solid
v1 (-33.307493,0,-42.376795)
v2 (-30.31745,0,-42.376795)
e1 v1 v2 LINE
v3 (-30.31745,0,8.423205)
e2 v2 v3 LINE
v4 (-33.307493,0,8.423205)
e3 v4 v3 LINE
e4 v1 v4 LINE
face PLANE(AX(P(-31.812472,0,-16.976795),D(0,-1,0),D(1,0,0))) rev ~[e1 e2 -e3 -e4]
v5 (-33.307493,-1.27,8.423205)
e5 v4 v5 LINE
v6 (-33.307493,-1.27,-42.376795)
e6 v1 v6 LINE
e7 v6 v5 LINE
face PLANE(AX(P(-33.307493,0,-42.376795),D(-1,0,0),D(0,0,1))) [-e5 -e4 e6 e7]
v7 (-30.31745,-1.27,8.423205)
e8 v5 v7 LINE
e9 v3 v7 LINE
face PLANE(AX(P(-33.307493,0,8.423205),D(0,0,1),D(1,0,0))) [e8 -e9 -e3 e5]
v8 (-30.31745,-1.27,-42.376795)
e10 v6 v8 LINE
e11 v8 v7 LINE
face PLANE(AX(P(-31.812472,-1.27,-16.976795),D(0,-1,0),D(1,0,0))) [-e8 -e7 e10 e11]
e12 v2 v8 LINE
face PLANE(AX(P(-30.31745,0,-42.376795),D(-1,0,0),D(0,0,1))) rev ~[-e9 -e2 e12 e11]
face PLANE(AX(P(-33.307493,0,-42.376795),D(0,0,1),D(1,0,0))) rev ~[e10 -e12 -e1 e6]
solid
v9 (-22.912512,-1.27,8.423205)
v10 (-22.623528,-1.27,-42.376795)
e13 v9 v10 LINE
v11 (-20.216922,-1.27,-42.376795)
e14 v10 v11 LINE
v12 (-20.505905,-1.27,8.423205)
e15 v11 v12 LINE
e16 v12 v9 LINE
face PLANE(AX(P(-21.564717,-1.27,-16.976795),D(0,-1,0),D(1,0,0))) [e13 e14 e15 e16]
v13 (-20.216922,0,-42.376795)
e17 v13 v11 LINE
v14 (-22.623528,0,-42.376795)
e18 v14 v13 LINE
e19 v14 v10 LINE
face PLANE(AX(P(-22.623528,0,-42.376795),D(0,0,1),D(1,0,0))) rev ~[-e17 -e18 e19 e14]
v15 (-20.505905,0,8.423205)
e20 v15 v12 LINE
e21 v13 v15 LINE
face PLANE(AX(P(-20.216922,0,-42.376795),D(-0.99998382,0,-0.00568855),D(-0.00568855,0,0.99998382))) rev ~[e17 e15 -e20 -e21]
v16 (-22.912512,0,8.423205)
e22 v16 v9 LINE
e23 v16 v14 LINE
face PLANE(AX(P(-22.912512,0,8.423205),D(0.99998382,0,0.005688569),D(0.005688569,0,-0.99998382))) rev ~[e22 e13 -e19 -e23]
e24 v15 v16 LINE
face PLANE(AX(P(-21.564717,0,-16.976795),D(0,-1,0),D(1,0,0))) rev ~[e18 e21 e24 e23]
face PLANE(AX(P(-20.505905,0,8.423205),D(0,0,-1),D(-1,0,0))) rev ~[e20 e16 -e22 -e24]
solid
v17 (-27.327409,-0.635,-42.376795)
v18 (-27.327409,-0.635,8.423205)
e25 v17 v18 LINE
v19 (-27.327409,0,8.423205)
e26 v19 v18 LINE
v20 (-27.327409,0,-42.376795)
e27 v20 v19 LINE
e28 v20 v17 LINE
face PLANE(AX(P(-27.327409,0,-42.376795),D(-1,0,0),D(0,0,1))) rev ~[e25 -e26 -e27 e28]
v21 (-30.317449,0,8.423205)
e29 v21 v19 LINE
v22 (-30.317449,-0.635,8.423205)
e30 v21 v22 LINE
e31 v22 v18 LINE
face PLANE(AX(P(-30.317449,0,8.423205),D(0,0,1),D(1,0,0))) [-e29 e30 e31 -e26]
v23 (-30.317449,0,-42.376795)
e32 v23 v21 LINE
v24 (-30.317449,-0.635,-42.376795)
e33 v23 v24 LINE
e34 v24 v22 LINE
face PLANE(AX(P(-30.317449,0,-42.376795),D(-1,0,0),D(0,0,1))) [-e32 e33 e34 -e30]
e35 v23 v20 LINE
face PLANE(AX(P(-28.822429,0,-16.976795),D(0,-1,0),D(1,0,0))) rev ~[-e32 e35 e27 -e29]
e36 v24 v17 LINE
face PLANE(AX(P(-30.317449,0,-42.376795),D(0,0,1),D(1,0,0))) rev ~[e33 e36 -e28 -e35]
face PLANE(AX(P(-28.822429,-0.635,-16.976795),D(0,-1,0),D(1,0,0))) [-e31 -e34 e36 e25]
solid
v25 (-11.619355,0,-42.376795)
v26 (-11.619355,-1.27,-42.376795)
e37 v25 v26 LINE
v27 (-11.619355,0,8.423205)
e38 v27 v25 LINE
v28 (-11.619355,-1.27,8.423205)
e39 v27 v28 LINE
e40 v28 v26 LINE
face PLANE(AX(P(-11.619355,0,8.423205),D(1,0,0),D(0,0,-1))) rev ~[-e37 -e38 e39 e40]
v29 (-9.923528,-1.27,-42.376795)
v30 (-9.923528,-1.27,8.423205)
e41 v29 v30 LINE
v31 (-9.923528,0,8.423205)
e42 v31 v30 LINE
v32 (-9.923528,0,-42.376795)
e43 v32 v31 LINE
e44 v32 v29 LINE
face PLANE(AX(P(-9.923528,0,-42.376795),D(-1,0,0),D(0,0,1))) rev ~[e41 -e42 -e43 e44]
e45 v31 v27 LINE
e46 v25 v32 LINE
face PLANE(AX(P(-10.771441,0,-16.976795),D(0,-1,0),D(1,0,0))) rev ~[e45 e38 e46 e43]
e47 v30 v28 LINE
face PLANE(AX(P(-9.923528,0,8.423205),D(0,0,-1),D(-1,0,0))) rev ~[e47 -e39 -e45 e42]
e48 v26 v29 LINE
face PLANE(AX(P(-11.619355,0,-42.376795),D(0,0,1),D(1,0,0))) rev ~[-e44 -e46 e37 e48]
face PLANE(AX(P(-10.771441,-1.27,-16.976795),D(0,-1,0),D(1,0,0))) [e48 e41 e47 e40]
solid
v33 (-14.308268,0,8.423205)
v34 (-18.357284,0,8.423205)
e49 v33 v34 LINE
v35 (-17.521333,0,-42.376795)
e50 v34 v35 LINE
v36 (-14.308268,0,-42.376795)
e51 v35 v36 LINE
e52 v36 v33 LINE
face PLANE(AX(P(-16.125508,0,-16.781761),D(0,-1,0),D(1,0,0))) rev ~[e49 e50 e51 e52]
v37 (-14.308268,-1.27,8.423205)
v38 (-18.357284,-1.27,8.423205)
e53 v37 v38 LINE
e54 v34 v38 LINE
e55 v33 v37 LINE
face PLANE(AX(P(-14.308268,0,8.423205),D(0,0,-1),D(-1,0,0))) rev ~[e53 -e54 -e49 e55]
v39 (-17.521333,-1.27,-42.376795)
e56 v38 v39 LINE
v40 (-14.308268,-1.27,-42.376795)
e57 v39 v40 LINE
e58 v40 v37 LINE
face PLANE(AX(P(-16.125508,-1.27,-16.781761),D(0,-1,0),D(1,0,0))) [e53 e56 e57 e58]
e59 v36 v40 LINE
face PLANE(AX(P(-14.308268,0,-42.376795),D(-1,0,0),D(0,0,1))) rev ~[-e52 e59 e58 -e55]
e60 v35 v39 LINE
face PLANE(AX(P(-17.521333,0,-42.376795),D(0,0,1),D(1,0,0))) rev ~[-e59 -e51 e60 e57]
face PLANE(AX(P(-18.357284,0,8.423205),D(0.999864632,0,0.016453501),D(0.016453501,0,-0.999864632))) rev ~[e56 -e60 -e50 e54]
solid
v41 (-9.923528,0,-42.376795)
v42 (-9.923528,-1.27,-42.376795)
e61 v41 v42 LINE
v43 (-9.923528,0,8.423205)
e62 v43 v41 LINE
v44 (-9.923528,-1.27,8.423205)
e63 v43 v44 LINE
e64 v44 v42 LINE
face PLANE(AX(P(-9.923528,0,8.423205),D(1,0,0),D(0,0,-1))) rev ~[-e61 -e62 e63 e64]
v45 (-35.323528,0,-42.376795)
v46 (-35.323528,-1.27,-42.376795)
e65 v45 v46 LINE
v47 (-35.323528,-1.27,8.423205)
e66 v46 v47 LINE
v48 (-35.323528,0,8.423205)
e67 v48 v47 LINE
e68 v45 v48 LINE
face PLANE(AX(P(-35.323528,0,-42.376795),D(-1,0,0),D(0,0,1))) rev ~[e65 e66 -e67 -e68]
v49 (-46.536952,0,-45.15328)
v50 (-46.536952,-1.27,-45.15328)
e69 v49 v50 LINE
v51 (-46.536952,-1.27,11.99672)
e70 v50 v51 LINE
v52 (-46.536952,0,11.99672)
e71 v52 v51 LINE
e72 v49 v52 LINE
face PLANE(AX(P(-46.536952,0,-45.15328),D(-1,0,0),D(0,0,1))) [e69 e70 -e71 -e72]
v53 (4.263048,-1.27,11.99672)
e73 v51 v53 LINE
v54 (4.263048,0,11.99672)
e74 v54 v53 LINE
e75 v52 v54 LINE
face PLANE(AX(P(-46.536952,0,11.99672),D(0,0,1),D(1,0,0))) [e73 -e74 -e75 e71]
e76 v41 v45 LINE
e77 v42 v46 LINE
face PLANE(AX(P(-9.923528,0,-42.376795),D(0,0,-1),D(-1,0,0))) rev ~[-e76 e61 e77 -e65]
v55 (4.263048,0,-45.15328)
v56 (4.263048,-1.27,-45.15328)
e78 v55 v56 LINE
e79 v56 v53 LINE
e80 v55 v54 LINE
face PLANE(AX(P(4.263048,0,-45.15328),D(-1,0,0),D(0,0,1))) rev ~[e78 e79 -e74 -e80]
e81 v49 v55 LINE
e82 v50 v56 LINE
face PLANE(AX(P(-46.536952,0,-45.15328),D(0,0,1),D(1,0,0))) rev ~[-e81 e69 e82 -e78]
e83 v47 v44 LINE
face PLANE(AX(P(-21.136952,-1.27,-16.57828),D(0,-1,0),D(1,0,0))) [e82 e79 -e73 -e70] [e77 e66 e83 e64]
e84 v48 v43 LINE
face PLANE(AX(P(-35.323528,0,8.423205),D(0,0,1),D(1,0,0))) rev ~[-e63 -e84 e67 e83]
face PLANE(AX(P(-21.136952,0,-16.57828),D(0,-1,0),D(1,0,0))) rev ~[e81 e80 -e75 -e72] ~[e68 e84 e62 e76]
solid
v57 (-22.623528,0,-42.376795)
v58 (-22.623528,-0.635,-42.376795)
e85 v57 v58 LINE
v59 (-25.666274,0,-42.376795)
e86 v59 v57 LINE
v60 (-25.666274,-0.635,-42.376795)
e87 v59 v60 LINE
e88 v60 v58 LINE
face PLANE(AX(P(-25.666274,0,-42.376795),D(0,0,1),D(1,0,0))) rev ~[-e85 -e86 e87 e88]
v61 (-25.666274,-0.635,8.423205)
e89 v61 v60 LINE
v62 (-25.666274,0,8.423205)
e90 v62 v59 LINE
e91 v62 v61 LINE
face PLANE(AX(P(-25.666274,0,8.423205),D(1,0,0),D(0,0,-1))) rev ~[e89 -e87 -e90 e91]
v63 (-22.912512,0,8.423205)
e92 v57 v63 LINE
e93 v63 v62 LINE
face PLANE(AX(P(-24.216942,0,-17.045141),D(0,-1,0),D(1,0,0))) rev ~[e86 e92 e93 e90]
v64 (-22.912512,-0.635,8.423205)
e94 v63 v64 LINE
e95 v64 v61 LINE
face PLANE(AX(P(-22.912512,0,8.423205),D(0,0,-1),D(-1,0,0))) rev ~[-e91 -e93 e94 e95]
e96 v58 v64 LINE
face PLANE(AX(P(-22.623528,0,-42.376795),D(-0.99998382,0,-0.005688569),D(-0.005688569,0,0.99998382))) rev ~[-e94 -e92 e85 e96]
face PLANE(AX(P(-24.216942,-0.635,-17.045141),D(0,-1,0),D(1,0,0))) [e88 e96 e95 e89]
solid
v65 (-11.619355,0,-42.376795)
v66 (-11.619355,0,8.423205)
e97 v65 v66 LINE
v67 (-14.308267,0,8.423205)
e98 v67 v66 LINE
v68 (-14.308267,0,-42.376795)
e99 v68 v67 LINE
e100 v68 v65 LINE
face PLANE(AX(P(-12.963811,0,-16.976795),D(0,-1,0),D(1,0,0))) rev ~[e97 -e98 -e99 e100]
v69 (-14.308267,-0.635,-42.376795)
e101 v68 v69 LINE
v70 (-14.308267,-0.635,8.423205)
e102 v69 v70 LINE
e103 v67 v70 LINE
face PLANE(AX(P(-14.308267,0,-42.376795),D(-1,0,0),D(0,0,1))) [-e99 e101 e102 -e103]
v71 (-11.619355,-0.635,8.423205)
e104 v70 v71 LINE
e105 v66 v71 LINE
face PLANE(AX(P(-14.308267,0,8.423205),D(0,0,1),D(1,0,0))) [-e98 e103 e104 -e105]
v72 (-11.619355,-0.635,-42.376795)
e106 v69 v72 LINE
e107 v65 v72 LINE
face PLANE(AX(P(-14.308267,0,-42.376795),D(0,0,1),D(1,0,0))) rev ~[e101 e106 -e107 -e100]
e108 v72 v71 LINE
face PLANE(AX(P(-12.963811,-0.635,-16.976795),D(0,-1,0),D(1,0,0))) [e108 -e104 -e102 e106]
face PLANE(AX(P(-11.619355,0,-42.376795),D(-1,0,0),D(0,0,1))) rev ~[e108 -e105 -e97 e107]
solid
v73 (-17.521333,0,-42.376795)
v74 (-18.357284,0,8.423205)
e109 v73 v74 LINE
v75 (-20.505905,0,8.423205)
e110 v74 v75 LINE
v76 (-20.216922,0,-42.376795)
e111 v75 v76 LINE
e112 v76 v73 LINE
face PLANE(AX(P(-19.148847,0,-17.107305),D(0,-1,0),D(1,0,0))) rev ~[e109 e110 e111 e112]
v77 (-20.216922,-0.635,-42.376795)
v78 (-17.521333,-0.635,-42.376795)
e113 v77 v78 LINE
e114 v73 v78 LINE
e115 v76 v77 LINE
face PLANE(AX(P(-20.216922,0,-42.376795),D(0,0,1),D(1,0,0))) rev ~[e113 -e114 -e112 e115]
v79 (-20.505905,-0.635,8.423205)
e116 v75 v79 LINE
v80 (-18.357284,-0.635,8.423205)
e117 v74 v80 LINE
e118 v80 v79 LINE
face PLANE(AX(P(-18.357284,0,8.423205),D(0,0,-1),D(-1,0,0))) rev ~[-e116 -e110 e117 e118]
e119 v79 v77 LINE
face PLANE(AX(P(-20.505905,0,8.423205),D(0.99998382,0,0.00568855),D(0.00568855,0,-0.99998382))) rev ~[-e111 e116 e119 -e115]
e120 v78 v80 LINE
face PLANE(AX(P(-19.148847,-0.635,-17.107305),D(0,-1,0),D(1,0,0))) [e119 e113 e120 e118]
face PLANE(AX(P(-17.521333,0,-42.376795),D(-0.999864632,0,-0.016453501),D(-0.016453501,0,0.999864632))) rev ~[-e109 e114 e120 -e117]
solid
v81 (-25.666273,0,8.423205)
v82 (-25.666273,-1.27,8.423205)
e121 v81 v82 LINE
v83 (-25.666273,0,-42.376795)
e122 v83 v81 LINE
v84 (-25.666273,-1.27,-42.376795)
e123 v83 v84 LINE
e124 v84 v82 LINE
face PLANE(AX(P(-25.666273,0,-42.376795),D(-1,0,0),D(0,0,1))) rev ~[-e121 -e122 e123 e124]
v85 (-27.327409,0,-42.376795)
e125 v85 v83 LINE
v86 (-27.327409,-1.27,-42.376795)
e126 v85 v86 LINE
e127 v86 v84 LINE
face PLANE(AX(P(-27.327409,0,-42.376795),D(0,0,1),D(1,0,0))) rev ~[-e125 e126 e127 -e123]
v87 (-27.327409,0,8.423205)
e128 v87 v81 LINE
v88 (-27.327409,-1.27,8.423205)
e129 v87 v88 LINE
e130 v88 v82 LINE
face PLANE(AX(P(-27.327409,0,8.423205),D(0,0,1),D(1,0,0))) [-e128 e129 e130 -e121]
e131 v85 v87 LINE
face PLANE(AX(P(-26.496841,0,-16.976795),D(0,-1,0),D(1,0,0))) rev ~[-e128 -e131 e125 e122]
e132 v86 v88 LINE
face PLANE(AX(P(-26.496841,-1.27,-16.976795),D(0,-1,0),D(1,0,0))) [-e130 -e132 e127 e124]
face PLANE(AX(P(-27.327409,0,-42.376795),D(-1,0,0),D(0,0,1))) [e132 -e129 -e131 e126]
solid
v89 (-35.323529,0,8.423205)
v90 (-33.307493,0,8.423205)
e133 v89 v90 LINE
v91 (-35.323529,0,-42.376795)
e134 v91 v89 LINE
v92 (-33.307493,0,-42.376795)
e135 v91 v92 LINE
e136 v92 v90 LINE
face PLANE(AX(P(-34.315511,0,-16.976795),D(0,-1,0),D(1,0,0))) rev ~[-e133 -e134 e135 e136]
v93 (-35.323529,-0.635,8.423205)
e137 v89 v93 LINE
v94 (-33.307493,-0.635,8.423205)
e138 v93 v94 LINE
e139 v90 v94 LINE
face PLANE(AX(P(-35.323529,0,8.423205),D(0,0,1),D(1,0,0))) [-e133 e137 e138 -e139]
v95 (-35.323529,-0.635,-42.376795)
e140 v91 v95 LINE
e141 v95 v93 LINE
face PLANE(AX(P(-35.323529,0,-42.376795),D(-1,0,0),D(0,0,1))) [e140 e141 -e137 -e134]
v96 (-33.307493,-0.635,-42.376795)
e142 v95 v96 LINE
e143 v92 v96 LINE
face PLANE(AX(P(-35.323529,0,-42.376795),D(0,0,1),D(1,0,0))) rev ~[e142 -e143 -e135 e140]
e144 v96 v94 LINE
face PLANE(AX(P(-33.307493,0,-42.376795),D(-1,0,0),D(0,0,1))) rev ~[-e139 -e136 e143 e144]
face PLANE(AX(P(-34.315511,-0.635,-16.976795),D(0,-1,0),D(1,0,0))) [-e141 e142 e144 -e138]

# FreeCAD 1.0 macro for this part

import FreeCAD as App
import Part
import Sketcher

V = App.Vector
Q = App.Units.Quantity


def add_polygon(sketch, points):
    """Adds a closed chain of lines whose ends are joined by coincident constraints."""
    first, n = sketch.GeometryCount, len(points)
    for a, b in zip(points, points[1:] + points[:1]):
        sketch.addGeometry(Part.LineSegment(App.Vector(*a, 0), App.Vector(*b, 0)), False)
    for i in range(n):
        sketch.addConstraint(Sketcher.Constraint("Coincident", first + i, 2, first + (i + 1) % n, 1))

doc = App.newDocument("Part")
body = doc.addObject("PartDesign::Body", "Body")
body.AllowCompound = True

# Sketch on XZ plane
sketch1 = body.newObject("Sketcher::SketchObject", "Sketch")
sketch1.AttachmentSupport = (doc.getObject("XZ_Plane"), [""])
sketch1.MapMode = "FlatFace"
add_polygon(sketch1, [(-35.3, 8.4), (-35.3, -42.4), (-33.3, -42.4), (-33.3, 8.4)])  # lines 0-3
add_polygon(sketch1, [(-30.3, 8.4), (-30.3, -42.4), (-27.3, -42.4), (-27.3, 8.4)])  # lines 4-7
add_polygon(sketch1, [(-22.9, 8.4), (-25.7, 8.4), (-25.7, -42.4), (-22.6, -42.4)])  # lines 8-11
add_polygon(sketch1, [(-18.4, 8.4), (-20.5, 8.4), (-20.2, -42.4), (-17.5, -42.4)])  # lines 12-15
add_polygon(sketch1, [(-14.3, 8.4), (-14.3, -42.4), (-11.6, -42.4), (-11.6, 8.4)])  # lines 16-19
sketch1.addConstraint([
    Sketcher.Constraint("Vertical", 0),
    Sketcher.Constraint("Horizontal", 1),
    Sketcher.Constraint("Vertical", 2),
    Sketcher.Constraint("Horizontal", 3),
    Sketcher.Constraint("Vertical", 4),
    Sketcher.Constraint("Horizontal", 5),
    Sketcher.Constraint("Vertical", 6),
    Sketcher.Constraint("Horizontal", 7),
    Sketcher.Constraint("Horizontal", 8),
    Sketcher.Constraint("Vertical", 9),
    Sketcher.Constraint("Horizontal", 10),
    Sketcher.Constraint("Horizontal", 12),
    Sketcher.Constraint("Horizontal", 14),
    Sketcher.Constraint("Vertical", 16),
    Sketcher.Constraint("Horizontal", 17),
    Sketcher.Constraint("Vertical", 18),
    Sketcher.Constraint("Horizontal", 19),
    Sketcher.Constraint("Parallel", 11, 13),
    Sketcher.Constraint("Horizontal", 1, 2, 4, 2),
    Sketcher.Constraint("Horizontal", 3, 2, 6, 2),
    Sketcher.Constraint("Horizontal", 7, 2, 8, 2),
    Sketcher.Constraint("Horizontal", 5, 2, 9, 2),
    Sketcher.Constraint("Horizontal", 11, 2, 12, 2),
    Sketcher.Constraint("Horizontal", 10, 2, 13, 2),
    Sketcher.Constraint("Horizontal", 14, 2, 16, 2),
    Sketcher.Constraint("Horizontal", 15, 2, 18, 2),
    Sketcher.Constraint("DistanceY", 0, 2, 0, 1, Q("2 in")),
    Sketcher.Constraint("DistanceX", 0, 2, 10, 2, Q("0.5 in")),
    Sketcher.Constraint("DistanceX", 5, 1, 5, 2, 2.990041),
    Sketcher.Constraint("DistanceX", 12, 2, 12, 1, 2.148621),
    Sketcher.Constraint("DistanceX", 14, 1, 14, 2, 2.695589),
    Sketcher.Constraint("Distance", 11, 50.800822),
    Sketcher.Constraint("DistanceX", 1, 1, 1, 2, 2.016035),
    Sketcher.Constraint("DistanceX", 8, 2, 8, 1, 2.753762),
    Sketcher.Constraint("DistanceX", 17, 1, 17, 2, 2.688913),
    Sketcher.Constraint("DistanceX", 0, 2, -1, 1, 35.323529),
    Sketcher.Constraint("DistanceX", 4, 2, -1, 1, 30.317449),
    Sketcher.Constraint("DistanceX", 8, 2, 12, 2, 5.160369),
    Sketcher.Constraint("DistanceX", 10, 2, 16, 2, 8.315261),
    Sketcher.Constraint("DistanceY", 0, 2, -1, 1, 42.376795),
])
pad1 = body.newObject("PartDesign::Pad", "Pad")
pad1.Profile = sketch1
pad1.Length = Q("0.025 in")
body2 = doc.addObject("PartDesign::Body", "Body001")
body2.AllowCompound = True

# Sketch on XZ plane
sketch2 = body2.newObject("Sketcher::SketchObject", "Sketch001")
sketch2.AttachmentSupport = (doc.getObject("XZ_Plane001"), [""])
sketch2.MapMode = "FlatFace"
add_polygon(sketch2, [(-33.3, 8.4), (-33.3, -42.4), (-30.3, -42.4), (-30.3, 8.4)])  # lines 0-3
add_polygon(sketch2, [(-27.3, 8.4), (-27.3, -42.4), (-25.7, -42.4), (-25.7, 8.4)])  # lines 4-7
add_polygon(sketch2, [(-20.5, 8.4), (-22.9, 8.4), (-22.6, -42.4), (-20.2, -42.4)])  # lines 8-11
add_polygon(sketch2, [(-14.3, 8.4), (-18.4, 8.4), (-17.5, -42.4), (-14.3, -42.4)])  # lines 12-15
add_polygon(sketch2, [(-9.9, 8.4), (-11.6, 8.4), (-11.6, -42.4), (-9.9, -42.4)])  # lines 16-19
sketch2.addConstraint([
    Sketcher.Constraint("Vertical", 0),
    Sketcher.Constraint("Horizontal", 1),
    Sketcher.Constraint("Vertical", 2),
    Sketcher.Constraint("Horizontal", 3),
    Sketcher.Constraint("Vertical", 4),
    Sketcher.Constraint("Horizontal", 5),
    Sketcher.Constraint("Vertical", 6),
    Sketcher.Constraint("Horizontal", 7),
    Sketcher.Constraint("Horizontal", 8),
    Sketcher.Constraint("Horizontal", 10),
    Sketcher.Constraint("Horizontal", 12),
    Sketcher.Constraint("Horizontal", 14),
    Sketcher.Constraint("Vertical", 15),
    Sketcher.Constraint("Horizontal", 16),
    Sketcher.Constraint("Vertical", 17),
    Sketcher.Constraint("Horizontal", 18),
    Sketcher.Constraint("Vertical", 19),
    Sketcher.Constraint("Parallel", 9, 11),
    Sketcher.Constraint("Horizontal", 1, 2, 4, 2),
    Sketcher.Constraint("Horizontal", 3, 2, 6, 2),
    Sketcher.Constraint("Horizontal", 7, 2, 8, 2),
    Sketcher.Constraint("Horizontal", 5, 2, 9, 2),
    Sketcher.Constraint("Horizontal", 11, 2, 12, 2),
    Sketcher.Constraint("Horizontal", 10, 2, 13, 2),
    Sketcher.Constraint("Horizontal", 15, 2, 16, 2),
    Sketcher.Constraint("Horizontal", 14, 2, 17, 2),
    Sketcher.Constraint("DistanceY", 0, 2, 0, 1, Q("2 in")),
    Sketcher.Constraint("DistanceX", 9, 2, 18, 2, Q("0.5 in")),
    Sketcher.Constraint("Distance", 9, 50.800822),
    Sketcher.Constraint("DistanceX", 1, 1, 1, 2, 2.990043),
    Sketcher.Constraint("DistanceX", 5, 1, 5, 2, 1.661135),
    Sketcher.Constraint("DistanceX", 8, 2, 8, 1, 2.406607),
    Sketcher.Constraint("DistanceX", 12, 2, 12, 1, 4.049016),
    Sketcher.Constraint("DistanceX", 14, 1, 14, 2, 3.213065),
    Sketcher.Constraint("DistanceX", 16, 2, 16, 1, 1.695827),
    Sketcher.Constraint("DistanceX", 1, 2, -1, 1, 30.31745),
    Sketcher.Constraint("DistanceX", 4, 2, -1, 1, 27.327409),
    Sketcher.Constraint("DistanceX", 8, 2, -1, 1, 22.912512),
    Sketcher.Constraint("DistanceX", 11, 2, 12, 2, 2.148621),
    Sketcher.Constraint("DistanceY", 0, 2, -1, 1, 42.376795),
])
pad2 = body2.newObject("PartDesign::Pad", "Pad001")
pad2.Profile = sketch2
pad2.Length = Q("0.05 in")
body3 = doc.addObject("PartDesign::Body", "Body002")

# Sketch on XZ plane
sketch3 = body3.newObject("Sketcher::SketchObject", "Sketch002")
sketch3.AttachmentSupport = (doc.getObject("XZ_Plane002"), [""])
sketch3.MapMode = "FlatFace"
add_polygon(sketch3, [(-47, 12), (-47, -45), (4, -45), (4, 12)])  # lines 0-3
add_polygon(sketch3, [(-10, -42), (-35, -42), (-35, 8), (-10, 8)])  # lines 4-7
sketch3.addConstraint([
    Sketcher.Constraint("Vertical", 0),
    Sketcher.Constraint("Horizontal", 1),
    Sketcher.Constraint("Vertical", 2),
    Sketcher.Constraint("Horizontal", 3),
    Sketcher.Constraint("Horizontal", 4),
    Sketcher.Constraint("Vertical", 5),
    Sketcher.Constraint("Horizontal", 6),
    Sketcher.Constraint("Vertical", 7),
    Sketcher.Constraint("Equal", 3, 5),
    Sketcher.Constraint("DistanceX", 1, 1, 1, 2, Q("2 in")),
    Sketcher.Constraint("DistanceX", 4, 2, 4, 1, Q("1 in")),
    Sketcher.Constraint("DistanceY", 0, 2, 0, 1, Q("2.25 in")),
    Sketcher.Constraint("DistanceY", 0, 2, -1, 1, 45.15328),
    Sketcher.Constraint("DistanceX", -1, 1, 1, 2, 4.263048),
    Sketcher.Constraint("DistanceX", 4, 2, -1, 1, 35.323528),
    Sketcher.Constraint("DistanceY", 4, 2, -1, 1, 42.376795),
])
pad3 = body3.newObject("PartDesign::Pad", "Pad002")
pad3.Profile = sketch3
pad3.Length = Q("0.05 in")

doc.recompute()
